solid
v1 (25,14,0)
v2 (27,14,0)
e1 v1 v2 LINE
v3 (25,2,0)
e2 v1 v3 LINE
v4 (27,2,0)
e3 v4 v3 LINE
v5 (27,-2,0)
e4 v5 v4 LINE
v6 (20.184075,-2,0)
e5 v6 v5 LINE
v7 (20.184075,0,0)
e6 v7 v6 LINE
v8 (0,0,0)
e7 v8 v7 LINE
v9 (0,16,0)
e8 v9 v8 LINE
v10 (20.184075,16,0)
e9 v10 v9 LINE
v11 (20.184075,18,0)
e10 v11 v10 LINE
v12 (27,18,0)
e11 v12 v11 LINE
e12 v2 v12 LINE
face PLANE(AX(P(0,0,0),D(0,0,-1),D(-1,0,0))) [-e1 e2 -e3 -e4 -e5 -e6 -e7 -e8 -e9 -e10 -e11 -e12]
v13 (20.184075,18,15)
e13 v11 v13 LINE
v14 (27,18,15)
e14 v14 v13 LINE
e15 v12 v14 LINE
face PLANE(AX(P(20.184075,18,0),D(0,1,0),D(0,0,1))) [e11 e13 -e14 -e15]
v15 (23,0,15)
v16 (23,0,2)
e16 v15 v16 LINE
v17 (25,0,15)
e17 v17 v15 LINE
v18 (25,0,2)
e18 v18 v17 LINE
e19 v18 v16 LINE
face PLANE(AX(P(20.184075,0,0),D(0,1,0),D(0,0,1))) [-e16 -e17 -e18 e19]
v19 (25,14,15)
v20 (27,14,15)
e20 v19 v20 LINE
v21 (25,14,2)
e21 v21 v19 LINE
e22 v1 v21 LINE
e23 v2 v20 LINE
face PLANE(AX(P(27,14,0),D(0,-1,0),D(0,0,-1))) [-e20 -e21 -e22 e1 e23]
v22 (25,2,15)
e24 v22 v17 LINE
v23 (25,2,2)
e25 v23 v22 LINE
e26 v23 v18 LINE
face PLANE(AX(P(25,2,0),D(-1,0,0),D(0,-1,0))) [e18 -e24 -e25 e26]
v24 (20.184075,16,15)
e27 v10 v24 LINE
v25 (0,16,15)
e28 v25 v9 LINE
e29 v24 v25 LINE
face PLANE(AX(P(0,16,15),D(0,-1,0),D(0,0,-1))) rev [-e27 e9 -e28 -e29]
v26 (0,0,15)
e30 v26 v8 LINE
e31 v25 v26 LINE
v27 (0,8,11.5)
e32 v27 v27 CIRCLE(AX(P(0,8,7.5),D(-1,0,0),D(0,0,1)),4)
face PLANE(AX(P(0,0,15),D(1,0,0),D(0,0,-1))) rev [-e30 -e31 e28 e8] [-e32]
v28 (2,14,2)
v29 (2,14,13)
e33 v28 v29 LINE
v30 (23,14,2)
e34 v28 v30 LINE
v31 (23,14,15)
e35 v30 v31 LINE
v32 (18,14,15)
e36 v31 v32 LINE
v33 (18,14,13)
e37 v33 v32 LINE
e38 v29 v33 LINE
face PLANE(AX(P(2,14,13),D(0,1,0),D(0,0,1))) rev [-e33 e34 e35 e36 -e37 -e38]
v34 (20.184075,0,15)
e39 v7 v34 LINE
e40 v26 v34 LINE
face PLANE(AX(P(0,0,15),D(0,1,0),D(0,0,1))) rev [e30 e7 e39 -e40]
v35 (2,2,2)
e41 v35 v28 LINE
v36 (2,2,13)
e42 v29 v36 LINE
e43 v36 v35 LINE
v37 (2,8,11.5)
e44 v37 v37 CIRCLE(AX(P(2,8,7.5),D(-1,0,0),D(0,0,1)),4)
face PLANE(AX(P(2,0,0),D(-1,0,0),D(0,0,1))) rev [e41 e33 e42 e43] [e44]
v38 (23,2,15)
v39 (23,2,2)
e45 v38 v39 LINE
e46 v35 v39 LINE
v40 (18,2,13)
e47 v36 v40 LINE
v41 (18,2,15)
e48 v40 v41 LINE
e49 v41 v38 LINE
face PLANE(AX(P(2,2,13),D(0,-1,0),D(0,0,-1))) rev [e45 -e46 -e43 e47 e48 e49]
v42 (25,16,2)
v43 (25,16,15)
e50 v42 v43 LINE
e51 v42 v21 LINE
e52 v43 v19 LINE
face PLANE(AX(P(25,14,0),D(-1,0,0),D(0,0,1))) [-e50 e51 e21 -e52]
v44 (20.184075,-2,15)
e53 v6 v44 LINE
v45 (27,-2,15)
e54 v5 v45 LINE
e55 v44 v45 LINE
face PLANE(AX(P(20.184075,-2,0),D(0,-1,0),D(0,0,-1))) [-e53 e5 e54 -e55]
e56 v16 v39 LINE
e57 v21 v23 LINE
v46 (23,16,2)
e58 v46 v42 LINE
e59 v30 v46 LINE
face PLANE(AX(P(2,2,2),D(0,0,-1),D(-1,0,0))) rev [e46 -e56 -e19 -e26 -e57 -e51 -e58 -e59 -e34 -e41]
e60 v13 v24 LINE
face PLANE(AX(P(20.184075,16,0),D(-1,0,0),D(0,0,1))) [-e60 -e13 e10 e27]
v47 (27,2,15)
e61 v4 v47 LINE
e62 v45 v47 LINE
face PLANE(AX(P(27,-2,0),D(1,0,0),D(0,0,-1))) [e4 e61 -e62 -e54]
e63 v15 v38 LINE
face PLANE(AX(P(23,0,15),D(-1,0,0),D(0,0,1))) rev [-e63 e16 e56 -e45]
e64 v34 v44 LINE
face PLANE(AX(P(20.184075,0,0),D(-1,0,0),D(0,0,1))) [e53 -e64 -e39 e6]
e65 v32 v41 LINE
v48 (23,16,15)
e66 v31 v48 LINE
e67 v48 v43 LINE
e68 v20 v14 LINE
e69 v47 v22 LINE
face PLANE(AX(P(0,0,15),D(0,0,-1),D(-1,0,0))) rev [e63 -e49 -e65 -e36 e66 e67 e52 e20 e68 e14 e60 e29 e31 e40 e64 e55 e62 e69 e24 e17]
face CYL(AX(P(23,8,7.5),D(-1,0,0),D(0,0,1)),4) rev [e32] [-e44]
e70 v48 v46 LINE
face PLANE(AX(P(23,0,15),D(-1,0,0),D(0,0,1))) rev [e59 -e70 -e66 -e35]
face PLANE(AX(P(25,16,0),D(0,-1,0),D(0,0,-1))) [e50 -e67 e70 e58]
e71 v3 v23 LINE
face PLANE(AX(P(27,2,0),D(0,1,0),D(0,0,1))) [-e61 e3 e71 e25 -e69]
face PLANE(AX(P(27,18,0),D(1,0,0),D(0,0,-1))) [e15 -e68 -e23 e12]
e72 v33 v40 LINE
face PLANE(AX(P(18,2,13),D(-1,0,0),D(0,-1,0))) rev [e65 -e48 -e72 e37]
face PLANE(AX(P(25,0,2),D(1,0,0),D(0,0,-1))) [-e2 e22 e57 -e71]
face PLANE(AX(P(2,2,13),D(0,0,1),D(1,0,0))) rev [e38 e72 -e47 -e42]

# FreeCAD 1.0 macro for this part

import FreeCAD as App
import Part
import Sketcher

V = App.Vector


def add_polygon(sketch, points):
    """Adds a closed chain of lines whose ends are joined by coincident constraints."""
    first, n = sketch.GeometryCount, len(points)
    for a, b in zip(points, points[1:] + points[:1]):
        sketch.addGeometry(Part.LineSegment(App.Vector(*a, 0), App.Vector(*b, 0)), False)
    for i in range(n):
        sketch.addConstraint(Sketcher.Constraint("Coincident", first + i, 2, first + (i + 1) % n, 1))

doc = App.newDocument("Part")
params = doc.addObject("Spreadsheet::Sheet", "Params")
for row, (alias, value) in enumerate([
    ("sketch1_width", "23 mm"),
    ("sketch1_height", "16 mm"),
    ("pad1_length", "15 mm"),
    ("sketch2_width", "12 mm"),
    ("sketch2_height", "11 mm"),
    ("pocket1_length", "21 mm"),
    ("sketch3_diameter", "8 mm"),
    ("pocket2_length", "23 mm"),
    ("sketch4_width", "5 mm"),
    ("sketch4_height", "12 mm"),
    ("pocket3_length", "2 mm"),
    ("sketch5_width", "2 mm"),
    ("pad2_length", "15 mm"),
    ("sketch6_width", "2 mm"),
    ("sketch6_height", "16 mm"),
    ("pad3_length", "2 mm"),
], start=1):
    params.set(f"A{row}", alias)
    params.set(f"B{row}", "=" + value)
    params.setAlias(f"B{row}", alias)

body = doc.addObject("PartDesign::Body", "Body")

# Sketch on XY plane
sketch1 = body.newObject("Sketcher::SketchObject", "Sketch")
sketch1.AttachmentSupport = (doc.getObject("XY_Plane"), [""])
sketch1.MapMode = "FlatFace"
add_polygon(sketch1, [(0, 16), (0, 0), (23, 0), (23, 16)])  # lines 0-3
sketch1.addConstraint([
    Sketcher.Constraint("Vertical", 0),
    Sketcher.Constraint("Horizontal", 1),
    Sketcher.Constraint("Vertical", 2),
    Sketcher.Constraint("Horizontal", 3),
    Sketcher.Constraint("Coincident", 0, 2, -1, 1),
    Sketcher.Constraint("DistanceX", 1, 1, 1, 2, 23.0),
    Sketcher.Constraint("DistanceY", 0, 2, 0, 1, 16.0),
])
sketch1.setExpression("Constraints[9]", "Params.sketch1_width")
sketch1.setExpression("Constraints[10]", "Params.sketch1_height")
pad1 = body.newObject("PartDesign::Pad", "Pad")
pad1.Profile = sketch1
pad1.setExpression("Length", "Params.pad1_length")

# Sketch on YZ plane
sketch2 = body.newObject("Sketcher::SketchObject", "Sketch001")
sketch2.AttachmentSupport = (doc.getObject("YZ_Plane"), [""])
sketch2.MapMode = "FlatFace"
sketch2.AttachmentOffset = App.Placement(V(0, 0, 23), App.Rotation())
add_polygon(sketch2, [(14, 13), (2, 13), (2, 2), (14, 2)])  # lines 0-3
sketch2.addConstraint([
    Sketcher.Constraint("Horizontal", 0),
    Sketcher.Constraint("Vertical", 1),
    Sketcher.Constraint("Horizontal", 2),
    Sketcher.Constraint("Vertical", 3),
    Sketcher.Constraint("DistanceX", 0, 2, 0, 1, 12.0),
    Sketcher.Constraint("DistanceY", 1, 2, 1, 1, 11.0),
    Sketcher.Constraint("DistanceX", -1, 1, 0, 2, 2.0),
    Sketcher.Constraint("DistanceY", -1, 1, 0, 2, 13.0),
])
sketch2.setExpression("Constraints[8]", "Params.sketch2_width")
sketch2.setExpression("Constraints[9]", "Params.sketch2_height")
pocket1 = body.newObject("PartDesign::Pocket", "Pocket")
pocket1.Profile = sketch2
pocket1.setExpression("Length", "Params.pocket1_length")

# Sketch on YZ plane
sketch3 = body.newObject("Sketcher::SketchObject", "Sketch002")
sketch3.AttachmentSupport = (doc.getObject("YZ_Plane"), [""])
sketch3.MapMode = "FlatFace"
sketch3.addGeometry(Part.Circle(V(8, 7.5, 0), V(0, 0, 1), 4), False)
sketch3.addConstraint([
    Sketcher.Constraint("Diameter", 0, 8.0),
    Sketcher.Constraint("DistanceX", -1, 1, 0, 3, 8.0),
    Sketcher.Constraint("DistanceY", -1, 1, 0, 3, 7.5),
])
sketch3.setExpression("Constraints[0]", "Params.sketch3_diameter")
pocket2 = body.newObject("PartDesign::Pocket", "Pocket001")
pocket2.Profile = sketch3
pocket2.setExpression("Length", "Params.pocket2_length")
pocket2.Reversed = True

# Sketch on XY plane
sketch4 = body.newObject("Sketcher::SketchObject", "Sketch003")
sketch4.AttachmentSupport = (doc.getObject("XY_Plane"), [""])
sketch4.MapMode = "FlatFace"
sketch4.AttachmentOffset = App.Placement(V(0, 0, 15), App.Rotation())
add_polygon(sketch4, [(18, 14), (18, 2), (23, 2), (23, 14)])  # lines 0-3
sketch4.addConstraint([
    Sketcher.Constraint("Vertical", 0),
    Sketcher.Constraint("Horizontal", 1),
    Sketcher.Constraint("Vertical", 2),
    Sketcher.Constraint("Horizontal", 3),
    Sketcher.Constraint("DistanceX", 1, 1, 1, 2, 5.0),
    Sketcher.Constraint("DistanceY", 0, 2, 0, 1, 12.0),
    Sketcher.Constraint("DistanceX", -1, 1, 0, 2, 18.0),
    Sketcher.Constraint("DistanceY", -1, 1, 0, 2, 2.0),
])
sketch4.setExpression("Constraints[8]", "Params.sketch4_width")
sketch4.setExpression("Constraints[9]", "Params.sketch4_height")
pocket3 = body.newObject("PartDesign::Pocket", "Pocket002")
pocket3.Profile = sketch4
pocket3.setExpression("Length", "Params.pocket3_length")

# Sketch on XY plane
sketch5 = body.newObject("Sketcher::SketchObject", "Sketch004")
sketch5.AttachmentSupport = (doc.getObject("XY_Plane"), [""])
sketch5.MapMode = "FlatFace"
sketch5.AttachmentOffset = App.Placement(V(0, 0, 15), App.Rotation())
add_polygon(sketch5, [(20.2, 18), (20.2, 16), (25, 16), (25, 14), (27, 14), (27, 18)])  # lines 0-5
add_polygon(sketch5, [(25, 0), (20.2, 0), (20.2, -2), (27, -2), (27, 2), (25, 2)])  # lines 6-11
sketch5.addConstraint([
    Sketcher.Constraint("Vertical", 0),
    Sketcher.Constraint("Horizontal", 1),
    Sketcher.Constraint("Vertical", 2),
    Sketcher.Constraint("Horizontal", 3),
    Sketcher.Constraint("Vertical", 4),
    Sketcher.Constraint("Horizontal", 5),
    Sketcher.Constraint("Horizontal", 6),
    Sketcher.Constraint("Vertical", 7),
    Sketcher.Constraint("Horizontal", 8),
    Sketcher.Constraint("Vertical", 9),
    Sketcher.Constraint("Horizontal", 10),
    Sketcher.Constraint("Vertical", 11),
    Sketcher.Constraint("PointOnObject", 6, 2, -1),
    Sketcher.Constraint("Vertical", 5, 2, 6, 2),
    Sketcher.Constraint("Vertical", 4, 2, 8, 2),
    Sketcher.Constraint("Vertical", 2, 2, 10, 2),
    Sketcher.Constraint("Equal", 10, 0),
    Sketcher.Constraint("Equal", 0, 2),
    Sketcher.Constraint("Equal", 2, 7),
    Sketcher.Constraint("Equal", 4, 9),
    Sketcher.Constraint("DistanceX", 3, 1, 3, 2, 2.0),
    Sketcher.Constraint("DistanceY", -1, 1, 0, 2, 16.0),
    Sketcher.Constraint("DistanceX", -1, 1, 1, 2, 25.0),
    Sketcher.Constraint("DistanceX", 1, 1, 1, 2, 4.815925),
])
sketch5.setExpression("Constraints[32]", "Params.sketch5_width")
pad2 = body.newObject("PartDesign::Pad", "Pad001")
pad2.Profile = sketch5
pad2.setExpression("Length", "Params.pad2_length")
pad2.Reversed = True

# Sketch on XY plane
sketch6 = body.newObject("Sketcher::SketchObject", "Sketch005")
sketch6.AttachmentSupport = (doc.getObject("XY_Plane"), [""])
sketch6.MapMode = "FlatFace"
add_polygon(sketch6, [(25, 16), (25, 0), (23, 0), (23, 16)])  # lines 0-3
sketch6.addConstraint([
    Sketcher.Constraint("Vertical", 0),
    Sketcher.Constraint("Horizontal", 1),
    Sketcher.Constraint("Vertical", 2),
    Sketcher.Constraint("Horizontal", 3),
    Sketcher.Constraint("PointOnObject", 0, 2, -1),
    Sketcher.Constraint("DistanceX", 1, 2, 1, 1, 2.0),
    Sketcher.Constraint("DistanceY", 0, 2, 0, 1, 16.0),
    Sketcher.Constraint("DistanceX", -1, 1, 0, 2, 25.0),
])
sketch6.setExpression("Constraints[9]", "Params.sketch6_width")
sketch6.setExpression("Constraints[10]", "Params.sketch6_height")
pad3 = body.newObject("PartDesign::Pad", "Pad002")
pad3.Profile = sketch6
pad3.setExpression("Length", "Params.pad3_length")

doc.recompute()
